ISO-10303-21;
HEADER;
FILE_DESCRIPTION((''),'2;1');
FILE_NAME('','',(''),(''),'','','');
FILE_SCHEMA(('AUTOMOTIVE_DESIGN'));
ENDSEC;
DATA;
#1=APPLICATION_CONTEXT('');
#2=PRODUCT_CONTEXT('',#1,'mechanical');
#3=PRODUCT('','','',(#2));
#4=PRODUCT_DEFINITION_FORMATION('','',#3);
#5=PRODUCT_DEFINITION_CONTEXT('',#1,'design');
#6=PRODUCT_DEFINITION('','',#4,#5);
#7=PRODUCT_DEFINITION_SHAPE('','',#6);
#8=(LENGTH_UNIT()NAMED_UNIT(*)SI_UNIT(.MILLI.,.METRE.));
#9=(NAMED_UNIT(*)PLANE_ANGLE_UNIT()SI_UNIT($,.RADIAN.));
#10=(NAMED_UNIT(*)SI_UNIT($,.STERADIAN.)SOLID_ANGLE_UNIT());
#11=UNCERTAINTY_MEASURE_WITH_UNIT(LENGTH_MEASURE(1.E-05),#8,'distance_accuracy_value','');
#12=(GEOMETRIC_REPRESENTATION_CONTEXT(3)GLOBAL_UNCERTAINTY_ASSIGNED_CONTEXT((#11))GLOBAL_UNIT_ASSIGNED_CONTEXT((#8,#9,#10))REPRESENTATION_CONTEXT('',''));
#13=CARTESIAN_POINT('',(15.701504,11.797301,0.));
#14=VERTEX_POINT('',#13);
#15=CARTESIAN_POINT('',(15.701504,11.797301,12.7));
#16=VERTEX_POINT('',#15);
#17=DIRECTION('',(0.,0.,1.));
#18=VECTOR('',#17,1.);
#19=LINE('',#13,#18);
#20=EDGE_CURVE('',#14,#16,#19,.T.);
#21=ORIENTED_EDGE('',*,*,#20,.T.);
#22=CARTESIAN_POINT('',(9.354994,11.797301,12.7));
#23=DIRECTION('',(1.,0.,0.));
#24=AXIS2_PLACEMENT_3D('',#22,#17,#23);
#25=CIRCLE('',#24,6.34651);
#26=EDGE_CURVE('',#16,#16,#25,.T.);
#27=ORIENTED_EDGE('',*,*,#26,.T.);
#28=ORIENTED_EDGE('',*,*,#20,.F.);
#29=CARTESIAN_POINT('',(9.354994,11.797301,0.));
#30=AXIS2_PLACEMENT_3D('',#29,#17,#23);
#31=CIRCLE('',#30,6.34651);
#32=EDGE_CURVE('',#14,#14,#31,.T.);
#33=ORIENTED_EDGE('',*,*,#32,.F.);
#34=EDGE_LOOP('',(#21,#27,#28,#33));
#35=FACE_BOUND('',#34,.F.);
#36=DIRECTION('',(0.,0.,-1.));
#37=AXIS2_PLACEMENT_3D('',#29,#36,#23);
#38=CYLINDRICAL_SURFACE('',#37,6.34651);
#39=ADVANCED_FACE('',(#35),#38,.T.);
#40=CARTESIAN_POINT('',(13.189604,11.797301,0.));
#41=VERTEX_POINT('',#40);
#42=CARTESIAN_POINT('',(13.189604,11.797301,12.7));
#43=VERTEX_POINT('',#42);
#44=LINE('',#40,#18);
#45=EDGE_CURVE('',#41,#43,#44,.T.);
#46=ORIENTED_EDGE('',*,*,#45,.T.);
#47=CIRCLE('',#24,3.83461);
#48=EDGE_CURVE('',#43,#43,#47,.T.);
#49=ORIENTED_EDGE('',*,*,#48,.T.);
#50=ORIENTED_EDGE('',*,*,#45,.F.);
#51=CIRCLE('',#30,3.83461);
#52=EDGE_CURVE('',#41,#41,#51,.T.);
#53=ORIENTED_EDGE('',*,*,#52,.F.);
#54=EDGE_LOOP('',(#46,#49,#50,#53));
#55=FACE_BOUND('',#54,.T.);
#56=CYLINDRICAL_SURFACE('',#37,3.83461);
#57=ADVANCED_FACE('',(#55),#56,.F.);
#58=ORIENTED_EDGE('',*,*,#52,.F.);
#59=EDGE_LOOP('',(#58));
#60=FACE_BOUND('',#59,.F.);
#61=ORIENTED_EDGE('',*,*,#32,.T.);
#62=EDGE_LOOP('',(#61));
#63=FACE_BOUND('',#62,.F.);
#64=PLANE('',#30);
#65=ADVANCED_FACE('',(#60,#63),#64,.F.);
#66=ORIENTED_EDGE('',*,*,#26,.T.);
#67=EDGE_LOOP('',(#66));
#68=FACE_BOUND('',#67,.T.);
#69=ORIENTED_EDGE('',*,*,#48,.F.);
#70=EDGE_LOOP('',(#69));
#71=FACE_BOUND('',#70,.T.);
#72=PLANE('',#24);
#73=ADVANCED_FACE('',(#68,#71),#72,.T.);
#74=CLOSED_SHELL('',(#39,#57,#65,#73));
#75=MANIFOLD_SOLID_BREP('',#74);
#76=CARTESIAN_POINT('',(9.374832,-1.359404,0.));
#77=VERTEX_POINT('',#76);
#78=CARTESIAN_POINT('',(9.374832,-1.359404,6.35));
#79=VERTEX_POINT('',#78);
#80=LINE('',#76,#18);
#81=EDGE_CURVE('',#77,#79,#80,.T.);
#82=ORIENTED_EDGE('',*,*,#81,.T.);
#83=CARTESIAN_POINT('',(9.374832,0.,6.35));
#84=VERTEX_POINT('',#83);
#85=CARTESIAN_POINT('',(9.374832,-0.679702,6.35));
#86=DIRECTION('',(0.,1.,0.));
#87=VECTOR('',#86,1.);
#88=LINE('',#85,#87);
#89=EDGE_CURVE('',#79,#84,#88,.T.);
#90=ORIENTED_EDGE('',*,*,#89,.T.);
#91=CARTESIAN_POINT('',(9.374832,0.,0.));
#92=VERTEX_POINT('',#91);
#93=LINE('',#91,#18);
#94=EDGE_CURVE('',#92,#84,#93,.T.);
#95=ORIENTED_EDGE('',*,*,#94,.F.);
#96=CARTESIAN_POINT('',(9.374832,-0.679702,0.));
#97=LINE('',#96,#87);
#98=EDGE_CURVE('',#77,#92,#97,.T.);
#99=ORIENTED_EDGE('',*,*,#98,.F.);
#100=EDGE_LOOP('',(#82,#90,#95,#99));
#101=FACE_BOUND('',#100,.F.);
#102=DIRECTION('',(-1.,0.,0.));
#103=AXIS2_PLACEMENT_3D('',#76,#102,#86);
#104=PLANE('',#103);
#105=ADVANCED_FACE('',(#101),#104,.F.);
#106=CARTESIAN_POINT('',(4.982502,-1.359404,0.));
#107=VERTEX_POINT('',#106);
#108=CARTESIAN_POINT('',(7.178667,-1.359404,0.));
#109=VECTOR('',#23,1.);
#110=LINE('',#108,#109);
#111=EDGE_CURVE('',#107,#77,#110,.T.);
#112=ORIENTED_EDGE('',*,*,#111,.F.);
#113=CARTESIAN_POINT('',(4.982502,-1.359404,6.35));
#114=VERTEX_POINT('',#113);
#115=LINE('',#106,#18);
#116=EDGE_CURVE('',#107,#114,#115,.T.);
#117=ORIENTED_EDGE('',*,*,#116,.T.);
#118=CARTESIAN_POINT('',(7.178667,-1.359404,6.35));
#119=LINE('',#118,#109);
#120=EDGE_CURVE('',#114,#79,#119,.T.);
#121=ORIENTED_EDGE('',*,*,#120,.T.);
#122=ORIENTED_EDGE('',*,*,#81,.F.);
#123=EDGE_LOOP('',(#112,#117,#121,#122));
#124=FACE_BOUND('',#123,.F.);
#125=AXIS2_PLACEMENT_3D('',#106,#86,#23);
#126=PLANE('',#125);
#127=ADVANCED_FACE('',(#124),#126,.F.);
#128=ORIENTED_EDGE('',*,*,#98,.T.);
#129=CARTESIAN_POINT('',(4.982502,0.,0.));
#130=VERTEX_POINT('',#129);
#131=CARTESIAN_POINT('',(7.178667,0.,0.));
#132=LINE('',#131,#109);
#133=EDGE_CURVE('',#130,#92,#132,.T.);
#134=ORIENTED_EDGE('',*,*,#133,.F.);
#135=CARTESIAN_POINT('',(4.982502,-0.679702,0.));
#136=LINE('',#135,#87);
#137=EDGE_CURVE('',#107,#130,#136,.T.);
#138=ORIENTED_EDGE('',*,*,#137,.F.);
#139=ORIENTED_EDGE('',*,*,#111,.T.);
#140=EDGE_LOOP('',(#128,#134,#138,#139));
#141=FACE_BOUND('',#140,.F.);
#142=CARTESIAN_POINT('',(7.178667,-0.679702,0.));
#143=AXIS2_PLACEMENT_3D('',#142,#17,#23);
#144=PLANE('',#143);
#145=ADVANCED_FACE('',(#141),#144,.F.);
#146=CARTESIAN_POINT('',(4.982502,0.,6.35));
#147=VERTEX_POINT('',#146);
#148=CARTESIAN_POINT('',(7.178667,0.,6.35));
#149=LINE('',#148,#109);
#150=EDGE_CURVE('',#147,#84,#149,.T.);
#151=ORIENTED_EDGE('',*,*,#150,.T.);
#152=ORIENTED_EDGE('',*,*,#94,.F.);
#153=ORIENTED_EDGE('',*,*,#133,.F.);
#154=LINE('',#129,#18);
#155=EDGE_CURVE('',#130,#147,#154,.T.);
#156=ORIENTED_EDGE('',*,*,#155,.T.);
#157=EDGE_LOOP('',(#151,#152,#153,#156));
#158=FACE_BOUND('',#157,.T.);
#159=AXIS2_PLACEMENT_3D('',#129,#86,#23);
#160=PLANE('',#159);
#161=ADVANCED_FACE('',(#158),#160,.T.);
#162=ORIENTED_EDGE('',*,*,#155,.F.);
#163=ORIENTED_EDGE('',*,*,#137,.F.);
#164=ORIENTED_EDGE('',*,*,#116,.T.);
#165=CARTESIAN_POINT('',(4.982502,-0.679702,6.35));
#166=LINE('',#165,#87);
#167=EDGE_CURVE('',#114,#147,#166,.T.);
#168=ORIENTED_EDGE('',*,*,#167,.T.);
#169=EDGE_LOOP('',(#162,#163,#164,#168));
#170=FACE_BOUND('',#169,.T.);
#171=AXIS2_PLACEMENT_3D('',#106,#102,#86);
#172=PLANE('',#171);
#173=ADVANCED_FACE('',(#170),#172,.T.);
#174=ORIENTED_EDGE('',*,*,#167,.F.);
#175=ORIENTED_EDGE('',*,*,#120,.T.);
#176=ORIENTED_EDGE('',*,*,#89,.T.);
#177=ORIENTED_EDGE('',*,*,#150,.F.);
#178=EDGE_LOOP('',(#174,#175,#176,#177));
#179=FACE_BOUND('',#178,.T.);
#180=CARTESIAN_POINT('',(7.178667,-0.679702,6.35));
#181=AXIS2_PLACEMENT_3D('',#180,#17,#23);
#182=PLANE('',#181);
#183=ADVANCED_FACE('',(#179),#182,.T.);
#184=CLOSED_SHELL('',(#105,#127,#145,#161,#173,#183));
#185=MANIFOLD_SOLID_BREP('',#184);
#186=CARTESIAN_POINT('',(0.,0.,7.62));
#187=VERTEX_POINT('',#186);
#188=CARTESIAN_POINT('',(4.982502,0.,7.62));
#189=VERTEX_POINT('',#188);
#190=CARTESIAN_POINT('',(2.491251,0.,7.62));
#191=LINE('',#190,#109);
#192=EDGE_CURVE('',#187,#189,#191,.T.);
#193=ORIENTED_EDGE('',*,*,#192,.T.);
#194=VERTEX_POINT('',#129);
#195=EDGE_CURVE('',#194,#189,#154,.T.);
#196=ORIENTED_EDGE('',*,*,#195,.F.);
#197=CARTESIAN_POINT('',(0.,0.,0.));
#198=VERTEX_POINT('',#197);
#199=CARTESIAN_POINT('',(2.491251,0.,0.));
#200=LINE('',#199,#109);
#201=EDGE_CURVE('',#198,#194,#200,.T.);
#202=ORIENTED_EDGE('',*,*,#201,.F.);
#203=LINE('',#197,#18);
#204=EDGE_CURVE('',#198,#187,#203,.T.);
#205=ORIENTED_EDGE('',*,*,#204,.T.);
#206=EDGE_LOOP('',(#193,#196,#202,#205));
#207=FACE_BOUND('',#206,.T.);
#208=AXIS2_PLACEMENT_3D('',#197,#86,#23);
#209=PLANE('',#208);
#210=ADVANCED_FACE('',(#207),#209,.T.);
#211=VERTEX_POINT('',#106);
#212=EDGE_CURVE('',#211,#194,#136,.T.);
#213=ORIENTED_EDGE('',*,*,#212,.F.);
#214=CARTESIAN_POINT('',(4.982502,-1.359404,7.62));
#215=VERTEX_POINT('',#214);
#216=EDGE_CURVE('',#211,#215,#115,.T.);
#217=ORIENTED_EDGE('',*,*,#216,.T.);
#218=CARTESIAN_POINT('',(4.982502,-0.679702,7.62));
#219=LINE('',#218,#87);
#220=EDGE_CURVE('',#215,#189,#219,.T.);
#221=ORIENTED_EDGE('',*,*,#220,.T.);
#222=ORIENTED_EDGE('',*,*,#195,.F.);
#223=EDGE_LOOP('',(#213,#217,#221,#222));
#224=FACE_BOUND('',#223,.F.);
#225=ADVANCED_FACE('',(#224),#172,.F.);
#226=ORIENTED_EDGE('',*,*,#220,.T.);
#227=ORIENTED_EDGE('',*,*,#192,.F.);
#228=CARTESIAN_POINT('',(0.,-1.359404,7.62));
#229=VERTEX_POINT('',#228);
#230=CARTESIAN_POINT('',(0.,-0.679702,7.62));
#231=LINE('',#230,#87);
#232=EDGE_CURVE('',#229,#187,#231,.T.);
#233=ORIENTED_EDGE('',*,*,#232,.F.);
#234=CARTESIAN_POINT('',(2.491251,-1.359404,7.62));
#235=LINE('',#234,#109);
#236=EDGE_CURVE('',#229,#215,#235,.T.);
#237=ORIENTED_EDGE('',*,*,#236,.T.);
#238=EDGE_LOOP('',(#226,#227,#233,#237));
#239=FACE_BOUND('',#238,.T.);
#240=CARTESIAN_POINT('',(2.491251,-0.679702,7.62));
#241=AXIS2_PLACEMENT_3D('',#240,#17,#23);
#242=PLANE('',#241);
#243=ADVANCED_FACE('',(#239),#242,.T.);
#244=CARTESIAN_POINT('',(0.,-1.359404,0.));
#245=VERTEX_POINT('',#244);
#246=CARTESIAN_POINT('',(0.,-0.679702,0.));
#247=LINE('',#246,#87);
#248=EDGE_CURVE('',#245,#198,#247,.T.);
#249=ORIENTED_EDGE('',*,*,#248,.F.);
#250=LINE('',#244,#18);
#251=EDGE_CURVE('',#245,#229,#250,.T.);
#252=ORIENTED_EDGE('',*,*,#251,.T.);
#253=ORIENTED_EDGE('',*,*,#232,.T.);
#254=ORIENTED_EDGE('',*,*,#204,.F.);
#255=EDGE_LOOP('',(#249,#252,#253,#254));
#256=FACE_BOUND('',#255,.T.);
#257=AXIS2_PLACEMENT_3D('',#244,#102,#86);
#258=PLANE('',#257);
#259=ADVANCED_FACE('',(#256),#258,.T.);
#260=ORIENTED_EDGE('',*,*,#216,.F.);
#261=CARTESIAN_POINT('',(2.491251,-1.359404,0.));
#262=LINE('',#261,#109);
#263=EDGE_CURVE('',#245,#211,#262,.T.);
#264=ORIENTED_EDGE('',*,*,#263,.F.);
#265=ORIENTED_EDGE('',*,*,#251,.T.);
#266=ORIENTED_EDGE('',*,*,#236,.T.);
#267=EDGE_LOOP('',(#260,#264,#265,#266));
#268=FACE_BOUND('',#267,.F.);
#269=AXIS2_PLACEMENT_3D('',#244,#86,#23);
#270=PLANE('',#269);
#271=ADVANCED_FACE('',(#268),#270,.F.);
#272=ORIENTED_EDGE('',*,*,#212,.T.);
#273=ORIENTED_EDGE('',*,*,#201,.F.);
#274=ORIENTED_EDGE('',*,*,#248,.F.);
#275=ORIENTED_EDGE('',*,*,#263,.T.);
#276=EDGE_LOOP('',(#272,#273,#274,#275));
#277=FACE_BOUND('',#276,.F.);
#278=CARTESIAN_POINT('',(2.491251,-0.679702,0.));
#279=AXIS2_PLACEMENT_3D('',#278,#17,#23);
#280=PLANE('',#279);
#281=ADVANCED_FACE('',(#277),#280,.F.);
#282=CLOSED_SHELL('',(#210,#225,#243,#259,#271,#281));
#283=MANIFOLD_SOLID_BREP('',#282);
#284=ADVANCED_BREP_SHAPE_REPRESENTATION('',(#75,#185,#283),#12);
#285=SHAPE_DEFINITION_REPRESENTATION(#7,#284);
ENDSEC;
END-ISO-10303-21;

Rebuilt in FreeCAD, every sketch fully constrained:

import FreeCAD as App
import Part
import Sketcher
Q = App.Units.Quantity


def add_polygon(sketch, points):
    """Adds a closed chain of lines whose ends are joined by coincident constraints."""
    first, n = sketch.GeometryCount, len(points)
    for a, b in zip(points, points[1:] + points[:1]):
        sketch.addGeometry(Part.LineSegment(App.Vector(*a, 0), App.Vector(*b, 0)), False)
    for i in range(n):
        sketch.addConstraint(Sketcher.Constraint("Coincident", first + i, 2, first + (i + 1) % n, 1))

doc = App.newDocument("Part")
body = doc.addObject("PartDesign::Body", "Body")

# Sketch on XY plane
sketch1 = body.newObject("Sketcher::SketchObject", "Sketch")
sketch1.AttachmentSupport = (doc.getObject("XY_Plane"), [""])
sketch1.MapMode = "FlatFace"
add_polygon(sketch1, [(5, 0), (5, -1.4), (9.4, -1.4), (9.4, 0)])  # lines 0-3
sketch1.addConstraint(Sketcher.Constraint("Vertical", 0))
sketch1.addConstraint(Sketcher.Constraint("Horizontal", 1))
sketch1.addConstraint(Sketcher.Constraint("Vertical", 2))
sketch1.addConstraint(Sketcher.Constraint("Horizontal", 3))
sketch1.addConstraint(Sketcher.Constraint("PointOnObject", 2, 2, -1))
sketch1.addConstraint(Sketcher.Constraint("DistanceX", 1, 1, 1, 2, Q("4.392329 mm")))
sketch1.addConstraint(Sketcher.Constraint("DistanceY", 0, 2, 0, 1, Q("1.359405 mm")))
sketch1.addConstraint(Sketcher.Constraint("DistanceX", -1, 1, 1, 2, Q("9.374832 mm")))
pad1 = body.newObject("PartDesign::Pad", "Pad")
pad1.Profile = sketch1
pad1.Length = Q("0.25 in")
body2 = doc.addObject("PartDesign::Body", "Body001")

# Sketch on XY plane
sketch2 = body2.newObject("Sketcher::SketchObject", "Sketch001")
sketch2.AttachmentSupport = (doc.getObject("XY_Plane001"), [""])
sketch2.MapMode = "FlatFace"
add_polygon(sketch2, [(0, 0), (0, -1.4), (5, -1.4), (5, 0)])  # lines 0-3
sketch2.addConstraint(Sketcher.Constraint("Vertical", 0))
sketch2.addConstraint(Sketcher.Constraint("Horizontal", 1))
sketch2.addConstraint(Sketcher.Constraint("Vertical", 2))
sketch2.addConstraint(Sketcher.Constraint("Horizontal", 3))
sketch2.addConstraint(Sketcher.Constraint("Coincident", 3, 2, -1, 1))
sketch2.addConstraint(Sketcher.Constraint("DistanceX", 1, 1, 1, 2, Q("4.982502 mm")))
sketch2.addConstraint(Sketcher.Constraint("DistanceY", 0, 2, 0, 1, Q("1.359405 mm")))
pad2 = body2.newObject("PartDesign::Pad", "Pad001")
pad2.Profile = sketch2
pad2.Length = Q("0.3 in")
body3 = doc.addObject("PartDesign::Body", "Body002")

# Sketch on XY plane
sketch3 = body3.newObject("Sketcher::SketchObject", "Sketch002")
sketch3.AttachmentSupport = (doc.getObject("XY_Plane002"), [""])
sketch3.MapMode = "FlatFace"
sketch3.addGeometry(Part.Circle(App.Vector(9.4, 11.8, 0), App.Vector(0, 0, 1), 6.3), False)
sketch3.addGeometry(Part.Circle(App.Vector(9.4, 11.8, 0), App.Vector(0, 0, 1), 3.8), False)
sketch3.addConstraint(Sketcher.Constraint("Coincident", 1, 3, 0, 3))
sketch3.addConstraint(Sketcher.Constraint("Diameter", 0, Q("12.69302 mm")))
sketch3.addConstraint(Sketcher.Constraint("Diameter", 1, Q("7.66922 mm")))
sketch3.addConstraint(Sketcher.Constraint("DistanceY", -1, 1, 0, 3, Q("11.797301 mm")))
sketch3.addConstraint(Sketcher.Constraint("DistanceX", -1, 1, 0, 3, Q("9.354994 mm")))
pad3 = body3.newObject("PartDesign::Pad", "Pad002")
pad3.Profile = sketch3
pad3.Length = Q("0.5 in")

doc.recompute()
